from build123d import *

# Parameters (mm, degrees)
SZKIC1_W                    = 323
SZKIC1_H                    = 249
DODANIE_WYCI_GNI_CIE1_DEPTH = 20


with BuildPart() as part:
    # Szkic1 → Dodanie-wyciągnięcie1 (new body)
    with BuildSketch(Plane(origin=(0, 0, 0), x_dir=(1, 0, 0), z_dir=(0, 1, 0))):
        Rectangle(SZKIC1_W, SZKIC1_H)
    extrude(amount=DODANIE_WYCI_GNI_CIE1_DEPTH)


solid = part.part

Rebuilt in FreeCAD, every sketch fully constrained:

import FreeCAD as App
import Part
import Sketcher
from FreeCAD import Vector
Q = App.Units.Quantity


def add_polygon(sketch, points):
    """Adds a closed chain of lines whose ends are joined by coincident constraints."""
    first, n = sketch.GeometryCount, len(points)
    for a, b in zip(points, points[1:] + points[:1]):
        sketch.addGeometry(Part.LineSegment(App.Vector(*a, 0), App.Vector(*b, 0)), False)
    for i in range(n):
        sketch.addConstraint(Sketcher.Constraint("Coincident", first + i, 2, first + (i + 1) % n, 1))

doc = App.newDocument("Part")
body = doc.addObject("PartDesign::Body", "Body")

# Sketch on XZ plane
sketch1 = body.newObject("Sketcher::SketchObject", "Sketch")
sketch1.AttachmentSupport = (doc.getObject("XZ_Plane"), [""])
sketch1.MapMode = "FlatFace"
add_polygon(sketch1, [(-161.5, -124.5), (-161.5, 124.5), (161.5, 124.5), (161.5, -124.5)])  # lines 0-3
sketch1.addConstraint([
    Sketcher.Constraint("Vertical", 0),
    Sketcher.Constraint("Horizontal", 1),
    Sketcher.Constraint("Vertical", 2),
    Sketcher.Constraint("Horizontal", 3),
    Sketcher.Constraint("Symmetric", 0, 2, 2, 2, -1, 1),
    Sketcher.Constraint("DistanceX", 1, 1, 1, 2, Q("323 mm")),
    Sketcher.Constraint("DistanceY", 0, 1, 0, 2, Q("249 mm")),
])
pad1 = body.newObject("PartDesign::Pad", "Pad")
pad1.Profile = sketch1
pad1.Length = 20
pad1.Reversed = True

doc.recompute()
